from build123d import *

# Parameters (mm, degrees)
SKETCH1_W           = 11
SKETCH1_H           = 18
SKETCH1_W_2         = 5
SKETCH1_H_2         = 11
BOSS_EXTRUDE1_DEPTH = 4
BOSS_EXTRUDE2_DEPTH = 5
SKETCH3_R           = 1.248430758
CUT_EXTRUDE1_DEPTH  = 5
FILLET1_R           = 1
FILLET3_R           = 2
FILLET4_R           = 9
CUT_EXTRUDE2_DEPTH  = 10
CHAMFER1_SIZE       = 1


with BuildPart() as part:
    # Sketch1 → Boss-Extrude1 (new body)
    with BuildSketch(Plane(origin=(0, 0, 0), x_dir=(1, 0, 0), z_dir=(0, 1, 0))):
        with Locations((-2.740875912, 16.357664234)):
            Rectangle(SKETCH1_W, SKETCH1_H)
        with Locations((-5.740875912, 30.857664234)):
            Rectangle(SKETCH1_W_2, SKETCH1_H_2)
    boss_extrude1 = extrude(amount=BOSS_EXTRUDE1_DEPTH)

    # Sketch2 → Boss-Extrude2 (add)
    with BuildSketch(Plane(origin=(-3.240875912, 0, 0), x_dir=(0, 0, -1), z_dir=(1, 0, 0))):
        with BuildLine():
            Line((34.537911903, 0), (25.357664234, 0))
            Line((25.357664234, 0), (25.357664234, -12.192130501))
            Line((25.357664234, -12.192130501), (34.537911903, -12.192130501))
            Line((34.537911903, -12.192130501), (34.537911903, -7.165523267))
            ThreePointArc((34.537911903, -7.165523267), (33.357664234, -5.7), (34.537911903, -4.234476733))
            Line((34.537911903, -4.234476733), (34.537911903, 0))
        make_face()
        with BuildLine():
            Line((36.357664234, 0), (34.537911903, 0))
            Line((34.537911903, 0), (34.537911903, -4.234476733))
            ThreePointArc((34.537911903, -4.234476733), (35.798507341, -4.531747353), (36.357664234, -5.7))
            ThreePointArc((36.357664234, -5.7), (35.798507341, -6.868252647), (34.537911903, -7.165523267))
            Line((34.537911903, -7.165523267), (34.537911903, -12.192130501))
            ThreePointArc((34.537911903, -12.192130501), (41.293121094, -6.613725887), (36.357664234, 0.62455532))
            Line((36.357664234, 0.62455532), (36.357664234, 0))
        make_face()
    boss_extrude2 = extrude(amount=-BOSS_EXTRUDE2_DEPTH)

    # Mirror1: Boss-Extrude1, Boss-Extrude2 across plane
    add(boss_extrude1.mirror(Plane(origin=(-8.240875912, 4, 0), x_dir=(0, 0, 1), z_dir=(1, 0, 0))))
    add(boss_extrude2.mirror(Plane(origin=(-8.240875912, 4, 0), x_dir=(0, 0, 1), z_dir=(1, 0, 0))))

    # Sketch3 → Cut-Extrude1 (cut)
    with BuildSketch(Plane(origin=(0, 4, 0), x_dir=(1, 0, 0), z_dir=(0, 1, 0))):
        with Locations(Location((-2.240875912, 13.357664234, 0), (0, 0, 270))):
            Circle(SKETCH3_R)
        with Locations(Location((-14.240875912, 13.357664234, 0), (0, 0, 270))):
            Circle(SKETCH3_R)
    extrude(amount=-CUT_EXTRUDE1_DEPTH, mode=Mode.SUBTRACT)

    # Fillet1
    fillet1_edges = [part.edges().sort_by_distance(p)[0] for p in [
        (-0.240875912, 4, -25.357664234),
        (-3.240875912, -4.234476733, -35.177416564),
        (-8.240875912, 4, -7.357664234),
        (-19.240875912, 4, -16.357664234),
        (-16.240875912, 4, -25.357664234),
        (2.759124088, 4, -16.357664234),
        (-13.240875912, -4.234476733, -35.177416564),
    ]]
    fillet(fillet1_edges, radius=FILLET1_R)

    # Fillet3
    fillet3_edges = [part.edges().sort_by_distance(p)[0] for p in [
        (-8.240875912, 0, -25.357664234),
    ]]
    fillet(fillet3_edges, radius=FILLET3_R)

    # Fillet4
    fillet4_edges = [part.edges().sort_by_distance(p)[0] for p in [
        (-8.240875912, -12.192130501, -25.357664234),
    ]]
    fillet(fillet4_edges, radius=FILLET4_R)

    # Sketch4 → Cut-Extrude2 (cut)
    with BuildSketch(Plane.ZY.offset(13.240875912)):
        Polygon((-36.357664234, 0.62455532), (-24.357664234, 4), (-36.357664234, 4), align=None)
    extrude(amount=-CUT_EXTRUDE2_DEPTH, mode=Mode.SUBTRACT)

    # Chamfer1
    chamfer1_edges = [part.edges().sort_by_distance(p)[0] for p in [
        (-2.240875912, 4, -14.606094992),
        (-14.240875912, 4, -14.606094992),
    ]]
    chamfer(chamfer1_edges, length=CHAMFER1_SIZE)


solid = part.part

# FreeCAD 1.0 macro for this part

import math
import FreeCAD as App
import Part
import Sketcher

V = App.Vector


def edges_at(feature, points):
    """Names of the edges that pass closest to the given points."""
    edges = feature.Shape.Edges
    near = lambda p: min(range(len(edges)), key=lambda i: edges[i].distToShape(Part.Vertex(*p))[0])
    return sorted({f"Edge{near(p) + 1}" for p in points})


def add_polygon(sketch, points):
    """Adds a closed chain of lines whose ends are joined by coincident constraints."""
    first, n = sketch.GeometryCount, len(points)
    for a, b in zip(points, points[1:] + points[:1]):
        sketch.addGeometry(Part.LineSegment(App.Vector(*a, 0), App.Vector(*b, 0)), False)
    for i in range(n):
        sketch.addConstraint(Sketcher.Constraint("Coincident", first + i, 2, first + (i + 1) % n, 1))

doc = App.newDocument("Part")
body = doc.addObject("PartDesign::Body", "Body")

sketch1 = body.newObject("Sketcher::SketchObject", "Sketch")
sketch1.AttachmentSupport = (doc.getObject("XZ_Plane"), [""])
sketch1.MapMode = "FlatFace"
add_polygon(sketch1, [(-8, -7), (3, -7), (3, -25), (-3, -25), (-3, -36), (-8, -36)])
sketch1.addConstraint(Sketcher.Constraint("Horizontal", 0))
sketch1.addConstraint(Sketcher.Constraint("Vertical", 1))
sketch1.addConstraint(Sketcher.Constraint("Horizontal", 2))
sketch1.addConstraint(Sketcher.Constraint("Vertical", 3))
sketch1.addConstraint(Sketcher.Constraint("Horizontal", 4))
sketch1.addConstraint(Sketcher.Constraint("Vertical", 5))
sketch1.addConstraint(Sketcher.Constraint("Equal", 0, 3))
sketch1.addConstraint(Sketcher.Constraint("DistanceX", 0, 1, 0, 2, 11.0))
sketch1.addConstraint(Sketcher.Constraint("DistanceX", 2, 2, 2, 1, 6.0))
sketch1.addConstraint(Sketcher.Constraint("DistanceY", 1, 2, 1, 1, 18.0))
sketch1.addConstraint(Sketcher.Constraint("DistanceX", -1, 1, 0, 2, 2.759124))
sketch1.addConstraint(Sketcher.Constraint("DistanceY", 0, 2, -1, 1, 7.357664))
pad1 = body.newObject("PartDesign::Pad", "Pad")
pad1.Profile = sketch1
pad1.Length = 4
pad1.Reversed = True

sketch2 = body.newObject("Sketcher::SketchObject", "Sketch001")
sketch2.AttachmentSupport = (doc.getObject("YZ_Plane"), [""])
sketch2.MapMode = "FlatFace"
sketch2.AttachmentOffset = App.Placement(V(0, 0, -3.240876), App.Rotation())
sketch2.addGeometry(Part.LineSegment(V(0, -25.4, 0), V(-12.2, -25.4, 0)), False)
sketch2.addGeometry(Part.LineSegment(V(-12.2, -25.4, 0), V(-12.2, -34.5, 0)), False)
sketch2.addGeometry(Part.ArcOfCircle(Part.Circle(V(-5.7, -34.9, 0), V(0, 0, 1), 6.5), math.radians(177), math.radians(347)), False)
sketch2.addGeometry(Part.LineSegment(V(0.6, -36.4, 0), V(0, -36.4, 0)), False)
sketch2.addGeometry(Part.LineSegment(V(0, -36.4, 0), V(0, -25.4, 0)), False)
sketch2.addGeometry(Part.ArcOfCircle(Part.Circle(V(-5.7, -34.9, 0), V(0, 0, 1), 1.5), math.radians(12), math.radians(168)), False)
sketch2.addGeometry(Part.ArcOfCircle(Part.Circle(V(-5.7, -34.9, 0), V(0, 0, 1), 1.5), math.radians(-90), math.radians(12)), False)
sketch2.addGeometry(Part.ArcOfCircle(Part.Circle(V(-5.7, -34.9, 0), V(0, 0, 1), 1.5), math.radians(168), math.radians(270)), False)
sketch2.addConstraint(Sketcher.Constraint("Coincident", 0, 2, 1, 1))
sketch2.addConstraint(Sketcher.Constraint("Coincident", 1, 2, 2, 1))
sketch2.addConstraint(Sketcher.Constraint("Coincident", 2, 2, 3, 1))
sketch2.addConstraint(Sketcher.Constraint("Coincident", 3, 2, 4, 1))
sketch2.addConstraint(Sketcher.Constraint("Coincident", 4, 2, 0, 1))
sketch2.addConstraint(Sketcher.Constraint("Tangent", 5, 1, 6, 2))
sketch2.addConstraint(Sketcher.Constraint("Tangent", 6, 1, 7, 2))
sketch2.addConstraint(Sketcher.Constraint("Tangent", 7, 1, 5, 2))
sketch2.addConstraint(Sketcher.Constraint("Horizontal", 0))
sketch2.addConstraint(Sketcher.Constraint("Vertical", 1))
sketch2.addConstraint(Sketcher.Constraint("Horizontal", 3))
sketch2.addConstraint(Sketcher.Constraint("Vertical", 4))
sketch2.addConstraint(Sketcher.Constraint("Coincident", 5, 3, 2, 3))
sketch2.addConstraint(Sketcher.Constraint("PointOnObject", 3, 2, -2))
sketch2.addConstraint(Sketcher.Constraint("Horizontal", 1, 2, 5, 1))
sketch2.addConstraint(Sketcher.Constraint("Horizontal", 3, 2, 6, 1))
sketch2.addConstraint(Sketcher.Constraint("Horizontal", 5, 1, 7, 1))
sketch2.addConstraint(Sketcher.Constraint("Vertical", 7, 3, 6, 1))
sketch2.addConstraint(Sketcher.Constraint("Radius", 2, 6.5))
sketch2.addConstraint(Sketcher.Constraint("Radius", 5, 1.5))
sketch2.addConstraint(Sketcher.Constraint("DistanceY", 4, 1, 4, 2, 11.0))
sketch2.addConstraint(Sketcher.Constraint("DistanceX", 2, 3, -1, 1, 5.7))
sketch2.addConstraint(Sketcher.Constraint("DistanceX", 0, 2, 0, 1, 12.192131))
sketch2.addConstraint(Sketcher.Constraint("DistanceY", 1, 2, -1, 1, 34.537912))
pad2 = body.newObject("PartDesign::Pad", "Pad001")
pad2.Profile = sketch2
pad2.Length = 5
pad2.Reversed = True
doc.recompute()

datumplane = body.newObject("PartDesign::Plane", "DatumPlane")
datumplane.AttachmentSupport = (doc.getObject("YZ_Plane"), [""])
datumplane.MapMode = "FlatFace"
datumplane.AttachmentOffset = App.Placement(V(0, 0, -8.240876), App.Rotation())
mirrored = body.newObject("PartDesign::Mirrored", "Mirrored")
mirrored.Originals = [pad1, pad2]
mirrored.MirrorPlane = (datumplane, [""])
body.Tip = mirrored

sketch3 = body.newObject("Sketcher::SketchObject", "Sketch002")
sketch3.AttachmentSupport = (doc.getObject("XZ_Plane"), [""])
sketch3.MapMode = "FlatFace"
sketch3.AttachmentOffset = App.Placement(V(0, 0, -4), App.Rotation())
sketch3.addGeometry(Part.Circle(V(-2.2, -13.4, 0), V(0, 0, 1), 1.2), False)
sketch3.addGeometry(Part.Circle(V(-14.2, -13.4, 0), V(0, 0, 1), 1.2), False)
sketch3.addConstraint(Sketcher.Constraint("Equal", 0, 1))
sketch3.addConstraint(Sketcher.Constraint("Horizontal", 0, 3, 1, 3))
sketch3.addConstraint(Sketcher.Constraint("DistanceX", 1, 3, 0, 3, 12.0))
sketch3.addConstraint(Sketcher.Constraint("Diameter", 0, 2.496862))
sketch3.addConstraint(Sketcher.Constraint("DistanceX", 0, 3, -1, 1, 2.240876))
sketch3.addConstraint(Sketcher.Constraint("DistanceY", 0, 3, -1, 1, 13.357664))
pocket1 = body.newObject("PartDesign::Pocket", "Pocket")
pocket1.Profile = sketch3
pocket1.Length = 5
pocket1.Reversed = True
doc.recompute()

fillet = body.newObject("PartDesign::Fillet", "Fillet")
fillet.Base = (pocket1, edges_at(pocket1, [
    (-0.241, 4, -25.358),
    (-3.241, -4.532, -35.799),
    (-8.241, 4, -7.358),
    (-19.241, 4, -16.358),
    (-16.241, 4, -25.358),
    (2.759, 4, -16.358),
    (-13.241, -4.532, -35.799),
]))
fillet.Radius = 1
doc.recompute()

fillet2 = body.newObject("PartDesign::Fillet", "Fillet001")
fillet2.Base = (fillet, edges_at(fillet, [(-8.241, 0, -25.358)]))
fillet2.Radius = 2
doc.recompute()

fillet3 = body.newObject("PartDesign::Fillet", "Fillet002")
fillet3.Base = (fillet2, edges_at(fillet2, [(-8.241, -12.192, -25.358)]))
fillet3.Radius = 9

sketch4 = body.newObject("Sketcher::SketchObject", "Sketch003")
sketch4.AttachmentSupport = (doc.getObject("YZ_Plane"), [""])
sketch4.MapMode = "FlatFace"
sketch4.AttachmentOffset = App.Placement(V(0, 0, -13.240876), App.Rotation())
add_polygon(sketch4, [(0.6, -36.4), (4, -24.4), (4, -36.4)])
sketch4.addConstraint(Sketcher.Constraint("Vertical", 1))
sketch4.addConstraint(Sketcher.Constraint("Horizontal", 2))
sketch4.addConstraint(Sketcher.Constraint("DistanceY", 1, 2, 1, 1, 12.0))
sketch4.addConstraint(Sketcher.Constraint("DistanceX", -1, 1, 0, 2, 4.0))
sketch4.addConstraint(Sketcher.Constraint("Distance", 0, 12.465698))
sketch4.addConstraint(Sketcher.Constraint("DistanceY", 0, 2, -1, 1, 24.357664))
pocket2 = body.newObject("PartDesign::Pocket", "Pocket001")
pocket2.Profile = sketch4
pocket2.Length = 10
pocket2.Reversed = True
doc.recompute()

chamfer = body.newObject("PartDesign::Chamfer", "Chamfer")
chamfer.Base = (pocket2, edges_at(pocket2, [(-2.241, 4, -14.606), (-14.241, 4, -14.606)]))
chamfer.Size = 1

doc.recompute()
